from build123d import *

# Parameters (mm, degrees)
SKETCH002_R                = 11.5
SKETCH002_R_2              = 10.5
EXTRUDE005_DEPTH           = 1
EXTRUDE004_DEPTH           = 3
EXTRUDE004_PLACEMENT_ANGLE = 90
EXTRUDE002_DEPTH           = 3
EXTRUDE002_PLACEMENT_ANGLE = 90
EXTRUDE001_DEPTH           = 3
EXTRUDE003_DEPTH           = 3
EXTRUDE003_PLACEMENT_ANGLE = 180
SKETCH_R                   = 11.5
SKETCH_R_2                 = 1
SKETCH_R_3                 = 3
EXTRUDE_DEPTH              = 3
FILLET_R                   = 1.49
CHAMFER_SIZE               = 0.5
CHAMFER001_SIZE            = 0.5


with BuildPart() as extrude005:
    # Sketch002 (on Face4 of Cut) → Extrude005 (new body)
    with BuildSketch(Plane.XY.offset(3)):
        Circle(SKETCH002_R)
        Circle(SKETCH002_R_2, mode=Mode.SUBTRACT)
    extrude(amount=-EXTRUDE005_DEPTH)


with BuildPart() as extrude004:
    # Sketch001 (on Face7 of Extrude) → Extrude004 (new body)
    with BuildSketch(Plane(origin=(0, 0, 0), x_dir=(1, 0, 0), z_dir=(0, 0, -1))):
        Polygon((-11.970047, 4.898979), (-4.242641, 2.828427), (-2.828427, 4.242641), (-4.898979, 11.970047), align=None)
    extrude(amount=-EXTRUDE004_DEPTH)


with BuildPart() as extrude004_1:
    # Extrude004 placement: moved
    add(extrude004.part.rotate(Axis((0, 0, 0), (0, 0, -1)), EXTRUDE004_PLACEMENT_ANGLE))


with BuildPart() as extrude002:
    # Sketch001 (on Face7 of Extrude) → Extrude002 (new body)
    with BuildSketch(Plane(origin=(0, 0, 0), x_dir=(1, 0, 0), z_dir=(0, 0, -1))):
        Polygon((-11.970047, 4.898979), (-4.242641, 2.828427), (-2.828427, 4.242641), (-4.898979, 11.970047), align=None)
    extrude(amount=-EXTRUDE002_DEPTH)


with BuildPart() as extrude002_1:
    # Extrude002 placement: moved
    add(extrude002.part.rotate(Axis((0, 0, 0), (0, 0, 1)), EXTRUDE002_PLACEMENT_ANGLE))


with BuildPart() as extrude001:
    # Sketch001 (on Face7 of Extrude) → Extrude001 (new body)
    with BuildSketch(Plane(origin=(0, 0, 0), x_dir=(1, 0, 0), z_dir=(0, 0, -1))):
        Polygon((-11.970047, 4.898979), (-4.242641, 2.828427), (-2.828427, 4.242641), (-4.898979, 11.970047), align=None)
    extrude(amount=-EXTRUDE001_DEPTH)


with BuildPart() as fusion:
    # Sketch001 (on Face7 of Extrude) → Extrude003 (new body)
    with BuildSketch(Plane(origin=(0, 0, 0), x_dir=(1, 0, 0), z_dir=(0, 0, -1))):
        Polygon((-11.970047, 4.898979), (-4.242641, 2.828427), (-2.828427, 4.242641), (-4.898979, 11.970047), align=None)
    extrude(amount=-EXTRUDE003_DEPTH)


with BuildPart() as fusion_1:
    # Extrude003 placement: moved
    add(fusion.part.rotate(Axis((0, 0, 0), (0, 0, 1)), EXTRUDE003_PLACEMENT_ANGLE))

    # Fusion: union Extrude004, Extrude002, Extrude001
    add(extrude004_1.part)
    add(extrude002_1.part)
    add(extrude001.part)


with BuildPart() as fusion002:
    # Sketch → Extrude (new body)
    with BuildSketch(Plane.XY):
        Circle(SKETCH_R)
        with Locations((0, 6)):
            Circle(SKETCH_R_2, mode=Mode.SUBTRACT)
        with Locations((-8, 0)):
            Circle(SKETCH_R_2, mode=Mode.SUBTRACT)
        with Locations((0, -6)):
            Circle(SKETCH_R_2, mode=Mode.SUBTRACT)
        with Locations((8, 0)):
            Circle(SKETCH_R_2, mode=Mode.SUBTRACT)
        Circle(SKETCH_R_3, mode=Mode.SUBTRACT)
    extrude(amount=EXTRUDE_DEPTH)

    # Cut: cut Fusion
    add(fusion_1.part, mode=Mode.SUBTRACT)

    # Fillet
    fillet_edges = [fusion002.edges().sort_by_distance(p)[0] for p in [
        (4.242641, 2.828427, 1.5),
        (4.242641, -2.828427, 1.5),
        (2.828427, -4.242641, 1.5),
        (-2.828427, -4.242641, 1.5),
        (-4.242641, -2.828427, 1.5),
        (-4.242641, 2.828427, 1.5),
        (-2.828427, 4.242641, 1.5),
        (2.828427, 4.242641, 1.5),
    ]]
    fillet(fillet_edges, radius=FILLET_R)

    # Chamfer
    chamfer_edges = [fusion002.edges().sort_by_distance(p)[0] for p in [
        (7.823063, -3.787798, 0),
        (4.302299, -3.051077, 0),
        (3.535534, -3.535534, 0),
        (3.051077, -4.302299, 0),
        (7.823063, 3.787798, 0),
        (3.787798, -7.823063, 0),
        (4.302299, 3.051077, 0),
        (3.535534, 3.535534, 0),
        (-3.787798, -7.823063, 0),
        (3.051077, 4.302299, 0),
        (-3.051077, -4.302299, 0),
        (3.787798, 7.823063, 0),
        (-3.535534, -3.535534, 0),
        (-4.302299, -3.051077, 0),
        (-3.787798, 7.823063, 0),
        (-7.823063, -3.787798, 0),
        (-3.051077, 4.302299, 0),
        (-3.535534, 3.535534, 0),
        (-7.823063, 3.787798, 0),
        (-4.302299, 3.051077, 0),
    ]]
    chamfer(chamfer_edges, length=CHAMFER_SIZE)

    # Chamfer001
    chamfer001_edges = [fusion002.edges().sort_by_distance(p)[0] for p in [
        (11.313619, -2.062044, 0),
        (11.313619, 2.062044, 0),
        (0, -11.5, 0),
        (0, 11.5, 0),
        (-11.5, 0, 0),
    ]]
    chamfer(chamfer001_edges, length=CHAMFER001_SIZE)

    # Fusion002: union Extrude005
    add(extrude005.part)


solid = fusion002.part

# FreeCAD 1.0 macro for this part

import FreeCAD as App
import Part
import Sketcher
Q = App.Units.Quantity


def edges_at(feature, points):
    """Names of the edges that pass closest to the given points."""
    edges = feature.Shape.Edges
    near = lambda p: min(range(len(edges)), key=lambda i: edges[i].distToShape(Part.Vertex(*p))[0])
    return sorted({f"Edge{near(p) + 1}" for p in points})


def add_polygon(sketch, points):
    """Adds a closed chain of lines whose ends are joined by coincident constraints."""
    first, n = sketch.GeometryCount, len(points)
    for a, b in zip(points, points[1:] + points[:1]):
        sketch.addGeometry(Part.LineSegment(App.Vector(*a, 0), App.Vector(*b, 0)), False)
    for i in range(n):
        sketch.addConstraint(Sketcher.Constraint("Coincident", first + i, 2, first + (i + 1) % n, 1))

doc = App.newDocument("Part")
body = doc.addObject("PartDesign::Body", "Body")

# Sketch on XY plane
sketch1 = body.newObject("Sketcher::SketchObject", "Sketch")
sketch1.AttachmentSupport = (doc.getObject("XY_Plane"), [""])
sketch1.MapMode = "FlatFace"
sketch1.AttachmentOffset = App.Placement(App.Vector(0, 0, 3), App.Rotation())
sketch1.addGeometry(Part.Circle(App.Vector(0, 0, 0), App.Vector(0, 0, 1), 11.5), False)
sketch1.addGeometry(Part.Circle(App.Vector(0, 0, 0), App.Vector(0, 0, 1), 10.5), False)
sketch1.addConstraint(Sketcher.Constraint("Coincident", 0, 3, -1, 1))
sketch1.addConstraint(Sketcher.Constraint("Coincident", 1, 3, -1, 1))
sketch1.addConstraint(Sketcher.Constraint("Diameter", 0, Q("23 mm")))
sketch1.addConstraint(Sketcher.Constraint("Diameter", 1, Q("21 mm")))
pad1 = body.newObject("PartDesign::Pad", "Pad")
pad1.Profile = sketch1
pad1.Length = 1
pad1.Reversed = True
body2 = doc.addObject("PartDesign::Body", "Body001")

# Sketch on XY plane
sketch2 = body2.newObject("Sketcher::SketchObject", "Sketch001")
sketch2.AttachmentSupport = (doc.getObject("XY_Plane001"), [""])
sketch2.MapMode = "FlatFace"
add_polygon(sketch2, [(-11.970047, -4.898979), (-4.242641, -2.828427), (-2.828427, -4.242641), (-4.898979, -11.970047)])  # lines 0-3
sketch2.addConstraint(Sketcher.Constraint("Parallel", 1, 3))
sketch2.addConstraint(Sketcher.Constraint("Equal", 0, 2))
sketch2.addConstraint(Sketcher.Constraint("Angle", 0, Q("14.999999 deg")))
sketch2.addConstraint(Sketcher.Constraint("Angle", 1, Q("-45 deg")))
sketch2.addConstraint(Sketcher.Constraint("Distance", 0, Q("7.999999 mm")))
sketch2.addConstraint(Sketcher.Constraint("Distance", 1, Q("2.000001 mm")))
sketch2.addConstraint(Sketcher.Constraint("DistanceX", 0, 2, -1, 1, Q("4.242641 mm")))
sketch2.addConstraint(Sketcher.Constraint("DistanceY", 1, 2, -1, 1, Q("4.242641 mm")))
pad2 = body2.newObject("PartDesign::Pad", "Pad001")
pad2.Profile = sketch2
pad2.Length = 3
body3 = doc.addObject("PartDesign::Body", "Body002")
doc.recompute()

body2.Placement = App.Placement(App.Vector(0, 0, 0), App.Rotation(App.Vector(0, 0, -1), 90))
boolean = body3.newObject("PartDesign::Boolean", "Boolean")
boolean.Type = "Fuse"
boolean.addObjects([body2])
body4 = doc.addObject("PartDesign::Body", "Body003")

# Sketch on XY plane
sketch3 = body4.newObject("Sketcher::SketchObject", "Sketch002")
sketch3.AttachmentSupport = (doc.getObject("XY_Plane003"), [""])
sketch3.MapMode = "FlatFace"
add_polygon(sketch3, [(-11.970047, -4.898979), (-4.242641, -2.828427), (-2.828427, -4.242641), (-4.898979, -11.970047)])  # lines 0-3
sketch3.addConstraint(Sketcher.Constraint("Parallel", 1, 3))
sketch3.addConstraint(Sketcher.Constraint("Equal", 0, 2))
sketch3.addConstraint(Sketcher.Constraint("Angle", 0, Q("14.999999 deg")))
sketch3.addConstraint(Sketcher.Constraint("Angle", 1, Q("-45 deg")))
sketch3.addConstraint(Sketcher.Constraint("Distance", 0, Q("7.999999 mm")))
sketch3.addConstraint(Sketcher.Constraint("Distance", 1, Q("2.000001 mm")))
sketch3.addConstraint(Sketcher.Constraint("DistanceX", 0, 2, -1, 1, Q("4.242641 mm")))
sketch3.addConstraint(Sketcher.Constraint("DistanceY", 1, 2, -1, 1, Q("4.242641 mm")))
pad3 = body4.newObject("PartDesign::Pad", "Pad002")
pad3.Profile = sketch3
pad3.Length = 3
body5 = doc.addObject("PartDesign::Body", "Body004")
doc.recompute()

body4.Placement = App.Placement(App.Vector(0, 0, 0), App.Rotation(App.Vector(0, 0, 1), 90))
boolean2 = body5.newObject("PartDesign::Boolean", "Boolean001")
boolean2.Type = "Fuse"
boolean2.addObjects([body4])
body6 = doc.addObject("PartDesign::Body", "Body005")

# Sketch on XY plane
sketch4 = body6.newObject("Sketcher::SketchObject", "Sketch003")
sketch4.AttachmentSupport = (doc.getObject("XY_Plane005"), [""])
sketch4.MapMode = "FlatFace"
add_polygon(sketch4, [(-11.970047, -4.898979), (-4.242641, -2.828427), (-2.828427, -4.242641), (-4.898979, -11.970047)])  # lines 0-3
sketch4.addConstraint(Sketcher.Constraint("Parallel", 1, 3))
sketch4.addConstraint(Sketcher.Constraint("Equal", 0, 2))
sketch4.addConstraint(Sketcher.Constraint("Angle", 0, Q("14.999999 deg")))
sketch4.addConstraint(Sketcher.Constraint("Angle", 1, Q("-45 deg")))
sketch4.addConstraint(Sketcher.Constraint("Distance", 0, Q("7.999999 mm")))
sketch4.addConstraint(Sketcher.Constraint("Distance", 1, Q("2.000001 mm")))
sketch4.addConstraint(Sketcher.Constraint("DistanceX", 0, 2, -1, 1, Q("4.242641 mm")))
sketch4.addConstraint(Sketcher.Constraint("DistanceY", 1, 2, -1, 1, Q("4.242641 mm")))
pad4 = body6.newObject("PartDesign::Pad", "Pad003")
pad4.Profile = sketch4
pad4.Length = 3
body7 = doc.addObject("PartDesign::Body", "Body006")

# Sketch on XY plane
sketch5 = body7.newObject("Sketcher::SketchObject", "Sketch004")
sketch5.AttachmentSupport = (doc.getObject("XY_Plane006"), [""])
sketch5.MapMode = "FlatFace"
add_polygon(sketch5, [(-11.970047, -4.898979), (-4.242641, -2.828427), (-2.828427, -4.242641), (-4.898979, -11.970047)])  # lines 0-3
sketch5.addConstraint(Sketcher.Constraint("Parallel", 1, 3))
sketch5.addConstraint(Sketcher.Constraint("Equal", 0, 2))
sketch5.addConstraint(Sketcher.Constraint("Angle", 0, Q("14.999999 deg")))
sketch5.addConstraint(Sketcher.Constraint("Angle", 1, Q("-45 deg")))
sketch5.addConstraint(Sketcher.Constraint("Distance", 0, Q("7.999999 mm")))
sketch5.addConstraint(Sketcher.Constraint("Distance", 1, Q("2.000001 mm")))
sketch5.addConstraint(Sketcher.Constraint("DistanceX", 0, 2, -1, 1, Q("4.242641 mm")))
sketch5.addConstraint(Sketcher.Constraint("DistanceY", 1, 2, -1, 1, Q("4.242641 mm")))
pad5 = body7.newObject("PartDesign::Pad", "Pad004")
pad5.Profile = sketch5
pad5.Length = 3
body8 = doc.addObject("PartDesign::Body", "Body007")
body8.AllowCompound = True
doc.recompute()

body7.Placement = App.Placement(App.Vector(0, 0, 0), App.Rotation(App.Vector(0, 0, 1), 180))
boolean3 = body8.newObject("PartDesign::Boolean", "Boolean002")
boolean3.Type = "Fuse"
boolean3.addObjects([body7])
doc.recompute()

boolean4 = body8.newObject("PartDesign::Boolean", "Boolean003")
boolean4.Type = "Fuse"
boolean4.addObjects([body3])
doc.recompute()

boolean5 = body8.newObject("PartDesign::Boolean", "Boolean004")
boolean5.Type = "Fuse"
boolean5.addObjects([body5])
doc.recompute()

boolean6 = body8.newObject("PartDesign::Boolean", "Boolean005")
boolean6.Type = "Fuse"
boolean6.addObjects([body6])
body9 = doc.addObject("PartDesign::Body", "Body008")

# Sketch on XY plane
sketch6 = body9.newObject("Sketcher::SketchObject", "Sketch005")
sketch6.AttachmentSupport = (doc.getObject("XY_Plane008"), [""])
sketch6.MapMode = "FlatFace"
sketch6.addGeometry(Part.Circle(App.Vector(0, 0, 0), App.Vector(0, 0, 1), 11.5), False)
sketch6.addGeometry(Part.Circle(App.Vector(0, -6, 0), App.Vector(0, 0, 1), 1), False)
sketch6.addGeometry(Part.Circle(App.Vector(-8, 0, 0), App.Vector(0, 0, 1), 1), False)
sketch6.addGeometry(Part.Circle(App.Vector(0, 0, 0), App.Vector(0, 0, 1), 3), False)
sketch6.addGeometry(Part.Circle(App.Vector(8, 0, 0), App.Vector(0, 0, 1), 1), False)
sketch6.addGeometry(Part.Circle(App.Vector(0, 6, 0), App.Vector(0, 0, 1), 1), False)
sketch6.addConstraint(Sketcher.Constraint("Coincident", 0, 3, -1, 1))
sketch6.addConstraint(Sketcher.Constraint("Coincident", 3, 3, -1, 1))
sketch6.addConstraint(Sketcher.Constraint("Equal", 1, 2))
sketch6.addConstraint(Sketcher.Constraint("Equal", 2, 4))
sketch6.addConstraint(Sketcher.Constraint("Equal", 4, 5))
sketch6.addConstraint(Sketcher.Constraint("Symmetric", 2, 3, 4, 3, -1, 1))
sketch6.addConstraint(Sketcher.Constraint("Symmetric", 1, 3, 5, 3, -1, 1))
sketch6.addConstraint(Sketcher.Constraint("PointOnObject", 1, 3, -2))
sketch6.addConstraint(Sketcher.Constraint("PointOnObject", 2, 3, -1))
sketch6.addConstraint(Sketcher.Constraint("Diameter", 0, Q("23 mm")))
sketch6.addConstraint(Sketcher.Constraint("Diameter", 1, Q("2 mm")))
sketch6.addConstraint(Sketcher.Constraint("Diameter", 3, Q("6 mm")))
sketch6.addConstraint(Sketcher.Constraint("DistanceY", 1, 3, -1, 1, Q("6 mm")))
sketch6.addConstraint(Sketcher.Constraint("DistanceX", 2, 3, -1, 1, Q("8 mm")))
pad6 = body9.newObject("PartDesign::Pad", "Pad005")
pad6.Profile = sketch6
pad6.Length = 3
doc.recompute()

boolean7 = body9.newObject("PartDesign::Boolean", "Boolean006")
boolean7.Type = "Cut"
boolean7.addObjects([body8])
doc.recompute()

fillet = body9.newObject("PartDesign::Fillet", "Fillet")
fillet.Base = (boolean7, edges_at(boolean7, [
    (4.243, 2.828, 1.5),
    (4.243, -2.828, 1.5),
    (2.828, -4.243, 1.5),
    (-2.828, -4.243, 1.5),
    (-4.243, -2.828, 1.5),
    (-4.243, 2.828, 1.5),
    (-2.828, 4.243, 1.5),
    (2.828, 4.243, 1.5),
]))
fillet.Radius = 1.49
doc.recompute()

chamfer = body9.newObject("PartDesign::Chamfer", "Chamfer")
chamfer.Base = (fillet, edges_at(fillet, [
    (7.823, -3.788, 0),
    (4.302, -3.051, 0),
    (3.536, -3.536, 0),
    (3.051, -4.302, 0),
    (7.823, 3.788, 0),
    (3.788, -7.823, 0),
    (4.302, 3.051, 0),
    (3.536, 3.536, 0),
    (-3.788, -7.823, 0),
    (3.051, 4.302, 0),
    (-3.051, -4.302, 0),
    (3.788, 7.823, 0),
    (-3.536, -3.536, 0),
    (-4.302, -3.051, 0),
    (-3.788, 7.823, 0),
    (-7.823, -3.788, 0),
    (-3.051, 4.302, 0),
    (-3.536, 3.536, 0),
    (-7.823, 3.788, 0),
    (-4.302, 3.051, 0),
]))
chamfer.Size = 0.5
doc.recompute()

chamfer2 = body9.newObject("PartDesign::Chamfer", "Chamfer001")
chamfer2.Base = (chamfer, edges_at(chamfer, [
    (11.5, 0, 0),
    (11.5, 0, 0),
    (0, -11.5, 0),
    (0, 11.5, 0),
    (-11.5, 0, 0),
]))
chamfer2.Size = 0.5
doc.recompute()

boolean8 = body9.newObject("PartDesign::Boolean", "Boolean007")
boolean8.Type = "Fuse"
boolean8.addObjects([body])

doc.recompute()
